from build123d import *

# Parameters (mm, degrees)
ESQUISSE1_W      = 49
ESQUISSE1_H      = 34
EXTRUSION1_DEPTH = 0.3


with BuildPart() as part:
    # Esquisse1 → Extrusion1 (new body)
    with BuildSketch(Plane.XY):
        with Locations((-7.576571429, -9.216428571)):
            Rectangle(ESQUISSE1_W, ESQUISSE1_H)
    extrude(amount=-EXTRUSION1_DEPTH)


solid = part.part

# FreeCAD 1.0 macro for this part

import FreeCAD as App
import Part
import Sketcher
from FreeCAD import Vector
Q = App.Units.Quantity


def add_polygon(sketch, points):
    """Adds a closed chain of lines whose ends are joined by coincident constraints."""
    first, n = sketch.GeometryCount, len(points)
    for a, b in zip(points, points[1:] + points[:1]):
        sketch.addGeometry(Part.LineSegment(App.Vector(*a, 0), App.Vector(*b, 0)), False)
    for i in range(n):
        sketch.addConstraint(Sketcher.Constraint("Coincident", first + i, 2, first + (i + 1) % n, 1))

doc = App.newDocument("Part")
body = doc.addObject("PartDesign::Body", "Body")

sketch1 = body.newObject("Sketcher::SketchObject", "Sketch")
sketch1.AttachmentSupport = (doc.getObject("XY_Plane"), [""])
sketch1.MapMode = "FlatFace"
add_polygon(sketch1, [(-32, 8), (-32, -26), (17, -26), (17, 8)])
sketch1.addConstraint(Sketcher.Constraint("Vertical", 0))
sketch1.addConstraint(Sketcher.Constraint("Horizontal", 1))
sketch1.addConstraint(Sketcher.Constraint("Vertical", 2))
sketch1.addConstraint(Sketcher.Constraint("Horizontal", 3))
sketch1.addConstraint(Sketcher.Constraint("DistanceX", 1, 1, 1, 2, Q("49 mm")))
sketch1.addConstraint(Sketcher.Constraint("DistanceY", 0, 2, 0, 1, Q("34 mm")))
sketch1.addConstraint(Sketcher.Constraint("DistanceX", 0, 2, -1, 1, Q("32.076571 mm")))
sketch1.addConstraint(Sketcher.Constraint("DistanceY", 0, 2, -1, 1, Q("26.216429 mm")))
pad1 = body.newObject("PartDesign::Pad", "Pad")
pad1.Profile = sketch1
pad1.Length = 0.3
pad1.Reversed = True

doc.recompute()
